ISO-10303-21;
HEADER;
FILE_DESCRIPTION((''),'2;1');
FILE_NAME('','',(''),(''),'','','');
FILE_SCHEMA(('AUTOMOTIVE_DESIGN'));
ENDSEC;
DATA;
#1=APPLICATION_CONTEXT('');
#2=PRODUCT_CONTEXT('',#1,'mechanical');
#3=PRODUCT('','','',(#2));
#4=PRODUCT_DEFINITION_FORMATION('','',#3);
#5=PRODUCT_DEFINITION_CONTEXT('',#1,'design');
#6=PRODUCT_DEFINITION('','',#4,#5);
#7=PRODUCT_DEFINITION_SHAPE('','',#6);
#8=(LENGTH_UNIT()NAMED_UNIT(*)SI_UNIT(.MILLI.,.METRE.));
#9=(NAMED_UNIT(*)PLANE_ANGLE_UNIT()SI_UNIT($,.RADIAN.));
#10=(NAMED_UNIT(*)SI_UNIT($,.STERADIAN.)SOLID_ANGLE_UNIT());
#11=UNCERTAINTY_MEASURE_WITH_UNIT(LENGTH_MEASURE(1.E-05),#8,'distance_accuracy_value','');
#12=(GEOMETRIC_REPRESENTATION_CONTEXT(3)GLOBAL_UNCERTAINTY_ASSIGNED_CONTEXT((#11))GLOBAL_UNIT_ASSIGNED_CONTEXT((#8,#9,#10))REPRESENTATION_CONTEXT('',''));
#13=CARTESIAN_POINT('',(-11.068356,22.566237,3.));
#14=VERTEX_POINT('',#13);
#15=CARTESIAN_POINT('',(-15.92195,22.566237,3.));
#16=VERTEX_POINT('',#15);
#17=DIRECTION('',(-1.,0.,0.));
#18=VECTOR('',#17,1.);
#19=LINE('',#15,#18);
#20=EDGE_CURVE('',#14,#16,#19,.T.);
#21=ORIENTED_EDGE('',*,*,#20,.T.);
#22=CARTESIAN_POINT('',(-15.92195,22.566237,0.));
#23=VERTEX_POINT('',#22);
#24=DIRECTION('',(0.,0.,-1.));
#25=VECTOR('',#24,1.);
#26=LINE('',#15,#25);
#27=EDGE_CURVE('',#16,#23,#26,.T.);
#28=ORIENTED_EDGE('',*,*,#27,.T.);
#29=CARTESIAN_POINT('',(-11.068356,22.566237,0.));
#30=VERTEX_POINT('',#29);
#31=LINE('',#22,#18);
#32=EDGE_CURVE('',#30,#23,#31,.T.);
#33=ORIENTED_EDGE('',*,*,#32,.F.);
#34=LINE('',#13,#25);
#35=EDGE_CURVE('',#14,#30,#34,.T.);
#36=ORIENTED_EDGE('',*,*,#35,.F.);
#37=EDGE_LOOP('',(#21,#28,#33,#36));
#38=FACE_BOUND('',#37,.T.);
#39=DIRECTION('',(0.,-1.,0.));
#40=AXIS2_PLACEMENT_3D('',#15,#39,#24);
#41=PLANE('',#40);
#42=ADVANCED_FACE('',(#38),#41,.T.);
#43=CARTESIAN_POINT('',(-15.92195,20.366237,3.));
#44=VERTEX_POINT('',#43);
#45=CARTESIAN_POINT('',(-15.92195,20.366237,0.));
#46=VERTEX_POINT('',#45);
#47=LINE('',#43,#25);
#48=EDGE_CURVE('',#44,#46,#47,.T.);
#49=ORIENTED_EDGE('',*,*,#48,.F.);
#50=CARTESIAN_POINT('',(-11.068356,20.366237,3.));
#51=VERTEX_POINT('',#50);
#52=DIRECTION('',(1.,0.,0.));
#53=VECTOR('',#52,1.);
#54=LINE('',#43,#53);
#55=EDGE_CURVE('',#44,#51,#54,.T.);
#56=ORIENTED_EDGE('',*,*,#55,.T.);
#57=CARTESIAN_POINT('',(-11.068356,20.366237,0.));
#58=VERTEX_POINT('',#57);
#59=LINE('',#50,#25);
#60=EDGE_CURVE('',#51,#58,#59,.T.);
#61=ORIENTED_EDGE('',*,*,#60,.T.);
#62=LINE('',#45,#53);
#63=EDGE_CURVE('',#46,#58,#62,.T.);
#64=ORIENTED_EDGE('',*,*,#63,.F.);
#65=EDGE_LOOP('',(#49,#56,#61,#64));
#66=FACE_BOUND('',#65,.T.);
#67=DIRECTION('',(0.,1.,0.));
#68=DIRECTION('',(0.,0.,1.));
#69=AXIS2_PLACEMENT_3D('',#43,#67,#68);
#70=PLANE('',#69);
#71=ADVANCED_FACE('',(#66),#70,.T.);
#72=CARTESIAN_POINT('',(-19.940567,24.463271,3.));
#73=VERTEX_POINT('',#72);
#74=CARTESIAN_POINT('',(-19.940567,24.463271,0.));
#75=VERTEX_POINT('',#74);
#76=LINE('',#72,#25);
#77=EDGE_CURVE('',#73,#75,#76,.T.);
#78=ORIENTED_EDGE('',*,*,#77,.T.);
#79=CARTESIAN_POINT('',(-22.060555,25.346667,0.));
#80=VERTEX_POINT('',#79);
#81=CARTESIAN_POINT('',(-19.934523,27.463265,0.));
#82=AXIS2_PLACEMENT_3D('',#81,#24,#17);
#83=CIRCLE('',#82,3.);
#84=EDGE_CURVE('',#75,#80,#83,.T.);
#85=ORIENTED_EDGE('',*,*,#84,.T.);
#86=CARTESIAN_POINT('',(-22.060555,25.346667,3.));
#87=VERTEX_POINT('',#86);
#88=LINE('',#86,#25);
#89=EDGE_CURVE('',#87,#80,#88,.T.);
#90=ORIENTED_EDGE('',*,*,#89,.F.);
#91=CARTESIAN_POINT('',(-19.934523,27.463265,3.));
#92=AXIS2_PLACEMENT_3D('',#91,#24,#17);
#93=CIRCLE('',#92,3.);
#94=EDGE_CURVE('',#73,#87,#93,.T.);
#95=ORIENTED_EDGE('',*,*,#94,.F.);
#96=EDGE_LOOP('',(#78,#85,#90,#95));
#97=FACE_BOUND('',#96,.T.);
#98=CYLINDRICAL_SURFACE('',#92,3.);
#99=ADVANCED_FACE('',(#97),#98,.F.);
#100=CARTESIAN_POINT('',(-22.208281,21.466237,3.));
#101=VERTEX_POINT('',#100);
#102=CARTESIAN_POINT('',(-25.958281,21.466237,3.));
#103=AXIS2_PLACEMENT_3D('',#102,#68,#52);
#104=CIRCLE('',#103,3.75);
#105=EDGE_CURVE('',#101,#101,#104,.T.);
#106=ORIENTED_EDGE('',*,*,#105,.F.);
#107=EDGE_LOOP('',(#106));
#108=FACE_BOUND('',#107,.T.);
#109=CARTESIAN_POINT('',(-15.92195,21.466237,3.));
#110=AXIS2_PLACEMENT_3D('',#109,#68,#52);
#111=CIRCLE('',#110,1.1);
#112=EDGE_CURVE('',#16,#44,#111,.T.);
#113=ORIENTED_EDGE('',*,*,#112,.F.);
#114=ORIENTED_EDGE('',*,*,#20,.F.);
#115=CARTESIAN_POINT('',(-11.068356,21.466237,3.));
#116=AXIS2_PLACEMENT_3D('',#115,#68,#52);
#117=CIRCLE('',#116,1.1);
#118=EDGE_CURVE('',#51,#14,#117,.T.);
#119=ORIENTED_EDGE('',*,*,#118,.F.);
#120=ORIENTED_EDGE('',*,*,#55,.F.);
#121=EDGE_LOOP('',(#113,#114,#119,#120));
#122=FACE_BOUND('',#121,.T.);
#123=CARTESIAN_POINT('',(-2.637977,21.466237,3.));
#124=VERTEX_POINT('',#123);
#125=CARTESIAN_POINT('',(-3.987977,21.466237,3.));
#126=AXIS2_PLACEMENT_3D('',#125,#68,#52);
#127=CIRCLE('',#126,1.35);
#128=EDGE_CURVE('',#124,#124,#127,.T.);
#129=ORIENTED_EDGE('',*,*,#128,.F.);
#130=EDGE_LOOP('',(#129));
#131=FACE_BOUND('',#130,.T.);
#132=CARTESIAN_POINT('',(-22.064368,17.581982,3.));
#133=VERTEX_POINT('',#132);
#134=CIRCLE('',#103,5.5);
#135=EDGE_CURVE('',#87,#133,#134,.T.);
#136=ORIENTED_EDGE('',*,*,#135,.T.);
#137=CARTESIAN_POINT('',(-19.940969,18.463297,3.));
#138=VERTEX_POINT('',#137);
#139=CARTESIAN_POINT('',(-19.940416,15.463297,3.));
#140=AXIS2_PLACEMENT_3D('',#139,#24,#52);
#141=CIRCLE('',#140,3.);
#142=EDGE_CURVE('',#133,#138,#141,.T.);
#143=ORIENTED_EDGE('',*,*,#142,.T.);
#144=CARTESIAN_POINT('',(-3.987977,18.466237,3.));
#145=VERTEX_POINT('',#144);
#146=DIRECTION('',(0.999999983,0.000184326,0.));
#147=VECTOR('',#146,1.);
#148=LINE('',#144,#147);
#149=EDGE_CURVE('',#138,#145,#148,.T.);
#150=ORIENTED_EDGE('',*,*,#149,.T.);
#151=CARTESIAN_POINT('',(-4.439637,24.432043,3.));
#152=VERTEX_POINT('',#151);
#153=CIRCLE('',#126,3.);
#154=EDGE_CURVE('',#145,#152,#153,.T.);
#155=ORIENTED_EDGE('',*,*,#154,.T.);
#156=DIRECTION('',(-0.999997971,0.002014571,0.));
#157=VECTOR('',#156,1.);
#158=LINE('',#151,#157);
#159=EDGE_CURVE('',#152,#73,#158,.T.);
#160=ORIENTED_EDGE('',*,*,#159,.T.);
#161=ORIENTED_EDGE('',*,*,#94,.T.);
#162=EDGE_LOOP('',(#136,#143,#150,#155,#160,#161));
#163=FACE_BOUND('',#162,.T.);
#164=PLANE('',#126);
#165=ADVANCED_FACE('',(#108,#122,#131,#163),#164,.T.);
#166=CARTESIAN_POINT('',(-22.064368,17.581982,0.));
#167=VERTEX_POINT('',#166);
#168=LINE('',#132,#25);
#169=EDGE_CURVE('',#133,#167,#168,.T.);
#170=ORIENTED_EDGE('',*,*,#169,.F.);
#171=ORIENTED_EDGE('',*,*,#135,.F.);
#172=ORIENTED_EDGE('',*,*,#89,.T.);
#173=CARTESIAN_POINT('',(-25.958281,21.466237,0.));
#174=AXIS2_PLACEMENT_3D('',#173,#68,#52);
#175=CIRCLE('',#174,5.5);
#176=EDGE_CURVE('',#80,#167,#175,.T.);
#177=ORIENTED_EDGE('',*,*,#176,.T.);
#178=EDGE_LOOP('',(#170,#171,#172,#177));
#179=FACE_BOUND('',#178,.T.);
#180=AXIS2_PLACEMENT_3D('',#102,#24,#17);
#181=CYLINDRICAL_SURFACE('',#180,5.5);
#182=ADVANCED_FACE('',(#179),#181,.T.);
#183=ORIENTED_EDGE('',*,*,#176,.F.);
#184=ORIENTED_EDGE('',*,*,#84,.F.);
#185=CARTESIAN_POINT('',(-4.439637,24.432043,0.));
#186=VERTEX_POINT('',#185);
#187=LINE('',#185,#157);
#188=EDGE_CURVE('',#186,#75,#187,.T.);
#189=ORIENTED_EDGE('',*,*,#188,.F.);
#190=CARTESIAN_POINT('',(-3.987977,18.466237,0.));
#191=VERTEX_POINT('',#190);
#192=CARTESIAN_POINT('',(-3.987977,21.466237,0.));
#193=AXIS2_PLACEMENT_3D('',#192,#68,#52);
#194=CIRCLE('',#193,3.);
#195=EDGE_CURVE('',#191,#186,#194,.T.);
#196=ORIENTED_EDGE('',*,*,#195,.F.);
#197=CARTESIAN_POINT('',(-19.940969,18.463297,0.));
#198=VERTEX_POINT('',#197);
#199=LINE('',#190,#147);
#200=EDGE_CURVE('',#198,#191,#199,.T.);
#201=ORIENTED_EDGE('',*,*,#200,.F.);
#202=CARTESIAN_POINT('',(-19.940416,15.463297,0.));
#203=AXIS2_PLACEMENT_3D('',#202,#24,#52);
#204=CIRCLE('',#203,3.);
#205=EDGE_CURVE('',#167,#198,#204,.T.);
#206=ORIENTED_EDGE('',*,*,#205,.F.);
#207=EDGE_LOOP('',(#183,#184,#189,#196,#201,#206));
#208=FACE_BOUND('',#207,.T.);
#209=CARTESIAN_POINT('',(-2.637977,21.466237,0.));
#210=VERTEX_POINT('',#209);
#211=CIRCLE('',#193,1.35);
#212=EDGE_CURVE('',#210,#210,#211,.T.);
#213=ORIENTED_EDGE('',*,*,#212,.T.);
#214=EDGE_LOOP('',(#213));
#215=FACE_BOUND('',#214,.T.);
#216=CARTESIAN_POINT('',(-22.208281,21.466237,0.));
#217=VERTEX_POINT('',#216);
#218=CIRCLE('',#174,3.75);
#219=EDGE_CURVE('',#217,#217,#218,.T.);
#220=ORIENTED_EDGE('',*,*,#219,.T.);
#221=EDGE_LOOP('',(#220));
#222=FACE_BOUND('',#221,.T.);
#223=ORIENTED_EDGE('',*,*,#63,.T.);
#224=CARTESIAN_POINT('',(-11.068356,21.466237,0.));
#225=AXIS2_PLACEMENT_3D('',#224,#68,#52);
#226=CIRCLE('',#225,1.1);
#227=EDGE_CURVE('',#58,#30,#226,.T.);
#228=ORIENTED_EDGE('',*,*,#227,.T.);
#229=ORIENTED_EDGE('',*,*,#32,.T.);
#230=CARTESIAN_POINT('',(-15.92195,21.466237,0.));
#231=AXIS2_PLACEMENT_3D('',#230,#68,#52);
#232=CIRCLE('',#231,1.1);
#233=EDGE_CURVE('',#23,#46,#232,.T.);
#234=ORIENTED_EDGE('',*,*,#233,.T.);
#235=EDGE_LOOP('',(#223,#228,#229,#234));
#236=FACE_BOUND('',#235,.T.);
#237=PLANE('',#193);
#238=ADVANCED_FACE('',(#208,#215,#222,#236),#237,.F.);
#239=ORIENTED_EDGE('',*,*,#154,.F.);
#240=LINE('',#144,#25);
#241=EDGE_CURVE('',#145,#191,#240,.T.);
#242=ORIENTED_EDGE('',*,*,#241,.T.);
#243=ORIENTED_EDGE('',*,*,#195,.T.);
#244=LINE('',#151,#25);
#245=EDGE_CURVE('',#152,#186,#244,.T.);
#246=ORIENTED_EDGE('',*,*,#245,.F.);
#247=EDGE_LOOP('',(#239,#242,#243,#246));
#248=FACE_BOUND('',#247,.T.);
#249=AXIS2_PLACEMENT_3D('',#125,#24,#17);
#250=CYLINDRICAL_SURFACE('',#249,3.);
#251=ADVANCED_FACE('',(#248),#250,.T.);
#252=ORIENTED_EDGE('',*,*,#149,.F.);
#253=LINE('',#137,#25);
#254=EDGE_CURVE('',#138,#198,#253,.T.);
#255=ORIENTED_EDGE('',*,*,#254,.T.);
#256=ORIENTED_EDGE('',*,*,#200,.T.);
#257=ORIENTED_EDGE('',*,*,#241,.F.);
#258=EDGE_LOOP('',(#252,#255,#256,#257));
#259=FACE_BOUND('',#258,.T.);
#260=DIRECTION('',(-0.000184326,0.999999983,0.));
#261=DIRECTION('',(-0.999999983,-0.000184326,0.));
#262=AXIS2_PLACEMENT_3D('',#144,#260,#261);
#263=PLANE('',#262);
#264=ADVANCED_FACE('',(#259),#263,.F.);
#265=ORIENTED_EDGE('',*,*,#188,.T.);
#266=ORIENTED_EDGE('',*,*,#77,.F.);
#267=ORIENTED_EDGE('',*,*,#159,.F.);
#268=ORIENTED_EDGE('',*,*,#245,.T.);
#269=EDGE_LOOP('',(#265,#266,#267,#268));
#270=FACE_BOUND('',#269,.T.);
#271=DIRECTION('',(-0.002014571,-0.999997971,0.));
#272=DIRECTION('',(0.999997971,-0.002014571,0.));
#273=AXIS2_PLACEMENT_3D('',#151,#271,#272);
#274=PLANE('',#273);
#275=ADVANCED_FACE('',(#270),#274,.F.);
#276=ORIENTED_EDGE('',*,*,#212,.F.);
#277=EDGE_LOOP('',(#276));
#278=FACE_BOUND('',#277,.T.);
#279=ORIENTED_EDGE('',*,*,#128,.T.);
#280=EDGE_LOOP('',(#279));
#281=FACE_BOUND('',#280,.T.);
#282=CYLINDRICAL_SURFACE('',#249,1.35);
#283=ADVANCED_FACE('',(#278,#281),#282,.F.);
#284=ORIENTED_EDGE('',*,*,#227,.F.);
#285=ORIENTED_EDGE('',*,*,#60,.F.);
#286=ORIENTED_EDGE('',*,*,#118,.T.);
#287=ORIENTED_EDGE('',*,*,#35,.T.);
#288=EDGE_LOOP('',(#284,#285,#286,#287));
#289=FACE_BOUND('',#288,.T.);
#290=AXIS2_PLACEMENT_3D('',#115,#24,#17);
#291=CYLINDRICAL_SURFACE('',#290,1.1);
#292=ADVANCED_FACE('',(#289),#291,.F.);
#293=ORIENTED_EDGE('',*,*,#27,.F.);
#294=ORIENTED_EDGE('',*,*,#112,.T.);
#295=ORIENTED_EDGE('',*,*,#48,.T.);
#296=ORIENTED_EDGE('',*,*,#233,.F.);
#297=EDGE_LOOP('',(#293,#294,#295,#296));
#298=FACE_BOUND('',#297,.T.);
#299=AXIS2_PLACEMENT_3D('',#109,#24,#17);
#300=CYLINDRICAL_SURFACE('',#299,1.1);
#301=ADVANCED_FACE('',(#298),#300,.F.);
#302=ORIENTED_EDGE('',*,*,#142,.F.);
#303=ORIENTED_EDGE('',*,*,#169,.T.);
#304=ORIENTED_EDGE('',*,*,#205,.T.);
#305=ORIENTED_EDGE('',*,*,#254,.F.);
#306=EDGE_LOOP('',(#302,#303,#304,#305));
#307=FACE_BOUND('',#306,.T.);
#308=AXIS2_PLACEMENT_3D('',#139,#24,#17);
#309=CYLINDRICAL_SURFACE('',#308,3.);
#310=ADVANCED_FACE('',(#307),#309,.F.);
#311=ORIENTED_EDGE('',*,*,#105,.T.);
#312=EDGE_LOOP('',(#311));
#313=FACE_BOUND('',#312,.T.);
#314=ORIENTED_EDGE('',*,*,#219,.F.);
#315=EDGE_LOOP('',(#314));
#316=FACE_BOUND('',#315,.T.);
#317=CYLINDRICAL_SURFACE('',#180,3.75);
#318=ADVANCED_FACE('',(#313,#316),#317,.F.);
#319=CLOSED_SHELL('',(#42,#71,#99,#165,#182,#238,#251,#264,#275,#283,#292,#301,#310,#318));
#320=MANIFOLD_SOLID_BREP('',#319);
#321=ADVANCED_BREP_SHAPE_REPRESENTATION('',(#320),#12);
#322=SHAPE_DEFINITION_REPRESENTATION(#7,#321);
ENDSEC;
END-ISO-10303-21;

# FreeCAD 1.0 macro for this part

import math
import FreeCAD as App
import Part
import Sketcher
from FreeCAD import Vector

doc = App.newDocument("Part")
body = doc.addObject("PartDesign::Body", "Body")

sketch1 = doc.addObject("Sketcher::SketchObject", "Sketch")
body.addObject(sketch1)
sketch1.AttachmentSupport = (doc.XY_Plane, [""])
sketch1.MapMode = "FlatFace"
sketch1.addGeometry([
    Part.LineSegment(Vector(-19.940969, 18.463297, 0), Vector(-3.987977, 18.466237, 0)),
    Part.ArcOfCircle(Part.Circle(Vector(-3.987977, 21.466237, 0), Vector(0, 0, 1), 3), math.radians(-90), math.radians(98.658988)),
    Part.LineSegment(Vector(-4.439637, 24.432043, 0), Vector(-19.940567, 24.463271, 0)),
    Part.ArcOfCircle(Part.Circle(Vector(-19.934523, 27.463265, 0), Vector(0, 0, 1), 3), math.radians(-135.127409), math.radians(-90.115426)),
    Part.ArcOfCircle(Part.Circle(Vector(-25.958281, 21.466237, 0), Vector(0, 0, 1), 5.5), math.radians(44.872591), math.radians(315.071138)),
    Part.ArcOfCircle(Part.Circle(Vector(-19.940416, 15.463297, 0), Vector(0, 0, 1), 3), math.radians(90.010561), math.radians(135.071138)),
    Part.Circle(Vector(-3.987977, 21.466237, 0), Vector(0, 0, 1), 1.35),
    Part.LineSegment(Vector(-15.92195, 22.566237, 0), Vector(-11.068356, 22.566237, 0)),
    Part.ArcOfCircle(Part.Circle(Vector(-11.068356, 21.466237, 0), Vector(0, 0, 1), 1.1), math.radians(-90), math.radians(90)),
    Part.LineSegment(Vector(-11.068356, 20.366237, 0), Vector(-15.92195, 20.366237, 0)),
    Part.ArcOfCircle(Part.Circle(Vector(-15.92195, 21.466237, 0), Vector(0, 0, 1), 1.1), math.radians(90), math.radians(270)),
    Part.Circle(Vector(-25.958281, 21.466237, 0), Vector(0, 0, 1), 3.75),
], False)
sketch1.addConstraint([
    Sketcher.Constraint("Coincident", 0, 2, 1, 1),
    Sketcher.Constraint("Coincident", 1, 2, 2, 1),
    Sketcher.Constraint("Tangent", 2, 2, 3, 2),
    Sketcher.Constraint("Tangent", 3, 1, 4, 1),
    Sketcher.Constraint("Tangent", 4, 2, 5, 2),
    Sketcher.Constraint("Tangent", 5, 1, 0, 1),
    Sketcher.Constraint("Tangent", 7, 2, 8, 2),
    Sketcher.Constraint("Tangent", 8, 1, 9, 1),
    Sketcher.Constraint("Tangent", 9, 2, 10, 2),
    Sketcher.Constraint("Tangent", 10, 1, 7, 1),
    Sketcher.Constraint("Horizontal", 7),
    Sketcher.Constraint("Horizontal", 9),
    Sketcher.Constraint("Coincident", 6, 3, 1, 3),
    Sketcher.Constraint("Coincident", 11, 3, 4, 3),
    Sketcher.Constraint("Equal", 1, 3),
    Sketcher.Constraint("Equal", 3, 5),
    Sketcher.Constraint("Horizontal", 1, 3, 4, 3),
    Sketcher.Constraint("Horizontal", 6, 3, 8, 3),
    Sketcher.Constraint("Vertical", 6, 3, 0, 2),
    Sketcher.Constraint("Radius", 1, 3.0),
    Sketcher.Constraint("Diameter", 6, 2.7),
    Sketcher.Constraint("Diameter", 11, 7.5),
    Sketcher.Constraint("Radius", 4, 5.5),
    Sketcher.Constraint("Radius", 8, 1.1),
    Sketcher.Constraint("DistanceX", 4, 2, 2, 2, 2.123801),
    Sketcher.Constraint("DistanceX", 4, 2, 5, 1, 2.1234),
    Sketcher.Constraint("Distance", 0, 15.952992),
    Sketcher.Constraint("Distance", 2, 15.500961),
    Sketcher.Constraint("DistanceX", 7, 1, 7, 2, 4.853595),
    Sketcher.Constraint("DistanceX", 4, 3, -1, 1, 25.958281),
    Sketcher.Constraint("DistanceX", 10, 3, -1, 1, 15.92195),
    Sketcher.Constraint("DistanceY", -1, 1, 2, 2, 24.463271),
])
pad1 = doc.addObject("PartDesign::Pad", "Pad")
body.addObject(pad1)
pad1.Profile = sketch1
pad1.Length = 3

doc.recompute()
